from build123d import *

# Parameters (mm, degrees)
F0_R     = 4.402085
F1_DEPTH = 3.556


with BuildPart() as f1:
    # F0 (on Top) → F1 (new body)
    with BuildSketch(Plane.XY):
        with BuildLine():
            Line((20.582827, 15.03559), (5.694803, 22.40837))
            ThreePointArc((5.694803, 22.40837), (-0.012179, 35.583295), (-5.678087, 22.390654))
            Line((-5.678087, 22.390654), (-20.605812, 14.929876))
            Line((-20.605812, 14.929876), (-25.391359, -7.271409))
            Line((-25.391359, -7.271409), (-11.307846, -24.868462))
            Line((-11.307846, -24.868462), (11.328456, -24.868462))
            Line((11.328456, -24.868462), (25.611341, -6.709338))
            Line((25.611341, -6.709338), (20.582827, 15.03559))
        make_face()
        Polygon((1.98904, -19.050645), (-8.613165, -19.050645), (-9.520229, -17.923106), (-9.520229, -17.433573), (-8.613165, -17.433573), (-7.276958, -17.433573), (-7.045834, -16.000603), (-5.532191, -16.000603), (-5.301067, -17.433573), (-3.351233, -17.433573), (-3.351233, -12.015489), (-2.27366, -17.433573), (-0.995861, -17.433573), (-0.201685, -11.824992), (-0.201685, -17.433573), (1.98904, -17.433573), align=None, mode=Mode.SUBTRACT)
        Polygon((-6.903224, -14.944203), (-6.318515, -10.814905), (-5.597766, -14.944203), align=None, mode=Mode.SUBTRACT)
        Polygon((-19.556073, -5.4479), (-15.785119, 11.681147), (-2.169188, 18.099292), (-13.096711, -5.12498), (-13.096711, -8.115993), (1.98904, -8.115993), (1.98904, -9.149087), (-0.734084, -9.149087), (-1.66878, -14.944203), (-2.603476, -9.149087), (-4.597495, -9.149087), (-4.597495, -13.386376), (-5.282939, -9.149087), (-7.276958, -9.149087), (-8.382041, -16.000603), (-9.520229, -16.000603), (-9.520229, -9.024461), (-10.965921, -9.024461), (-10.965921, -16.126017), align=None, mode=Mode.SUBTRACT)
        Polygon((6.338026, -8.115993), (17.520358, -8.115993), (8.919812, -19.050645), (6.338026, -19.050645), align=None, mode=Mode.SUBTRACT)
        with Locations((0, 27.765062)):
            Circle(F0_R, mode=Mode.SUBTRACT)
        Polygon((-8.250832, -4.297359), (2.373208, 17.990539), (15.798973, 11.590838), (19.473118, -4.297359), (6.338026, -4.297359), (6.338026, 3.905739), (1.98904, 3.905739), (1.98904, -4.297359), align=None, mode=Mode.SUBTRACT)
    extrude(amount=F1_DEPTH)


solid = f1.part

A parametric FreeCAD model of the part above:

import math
import FreeCAD as App
import Part
import Sketcher
from FreeCAD import Vector
Q = App.Units.Quantity


def add_polygon(sketch, points):
    """Adds a closed chain of lines whose ends are joined by coincident constraints."""
    first, n = sketch.GeometryCount, len(points)
    for a, b in zip(points, points[1:] + points[:1]):
        sketch.addGeometry(Part.LineSegment(App.Vector(*a, 0), App.Vector(*b, 0)), False)
    for i in range(n):
        sketch.addConstraint(Sketcher.Constraint("Coincident", first + i, 2, first + (i + 1) % n, 1))

doc = App.newDocument("Part")
params = doc.addObject("Spreadsheet::Sheet", "Params")
for row, (alias, value) in enumerate([
    ("pad1_length", "0.14 in"),
], start=1):
    params.set(f"A{row}", alias)
    params.set(f"B{row}", "=" + value)
    params.setAlias(f"B{row}", alias)

body = doc.addObject("PartDesign::Body", "Body")

sketch1 = body.newObject("Sketcher::SketchObject", "Sketch")
sketch1.AttachmentSupport = (doc.getObject("XY_Plane"), [""])
sketch1.MapMode = "FlatFace"
sketch1.addGeometry(Part.LineSegment(Vector(20.582827, 15.03559, 0), Vector(5.694803, 22.40837, 0)), False)
sketch1.addGeometry(Part.ArcOfCircle(Part.Circle(Vector(0, 27.765061, 0), Vector(0, 0, 1), 7.818243), math.radians(-43.247627), math.radians(223.426131)), False)
sketch1.addGeometry(Part.LineSegment(Vector(-5.678087, 22.390654, 0), Vector(-20.605812, 14.929876, 0)), False)
sketch1.addGeometry(Part.LineSegment(Vector(-20.605812, 14.929876, 0), Vector(-25.391359, -7.271409, 0)), False)
sketch1.addGeometry(Part.LineSegment(Vector(-25.391359, -7.271409, 0), Vector(-11.307846, -24.868462, 0)), False)
sketch1.addGeometry(Part.LineSegment(Vector(-11.307846, -24.868462, 0), Vector(11.328456, -24.868462, 0)), False)
sketch1.addGeometry(Part.LineSegment(Vector(11.328456, -24.868462, 0), Vector(25.611341, -6.709338, 0)), False)
sketch1.addGeometry(Part.LineSegment(Vector(25.611341, -6.709338, 0), Vector(20.582827, 15.03559, 0)), False)
add_polygon(sketch1, [(-5.597766, -14.944203), (-6.903224, -14.944203), (-6.318515, -10.814905)])
add_polygon(sketch1, [(1.98904, -17.433573), (1.98904, -19.050645), (-8.613165, -19.050645), (-9.520229, -17.923106), (-9.520229, -17.433573), (-7.276958, -17.433573), (-7.045834, -16.000603), (-5.532191, -16.000603), (-5.301067, -17.433573), (-3.351233, -17.433573), (-3.351233, -12.015489), (-2.27366, -17.433573), (-0.995861, -17.433573), (-0.201685, -11.824992), (-0.201685, -17.433573)])
add_polygon(sketch1, [(-10.965921, -16.126017), (-19.556073, -5.4479), (-15.785119, 11.681147), (-2.169188, 18.099292), (-13.096711, -5.12498), (-13.096711, -8.115993), (1.98904, -8.115993), (1.98904, -9.149087), (-0.734084, -9.149087), (-1.66878, -14.944203), (-2.603476, -9.149087), (-4.597495, -9.149087), (-4.597495, -13.386376), (-5.282939, -9.149087), (-7.276958, -9.149087), (-8.382041, -16.000603), (-9.520229, -16.000603), (-9.520229, -9.024461), (-10.965921, -9.024461)])
add_polygon(sketch1, [(6.338026, -19.050645), (6.338026, -8.115993), (17.520358, -8.115993), (8.919812, -19.050645)])
add_polygon(sketch1, [(1.98904, -4.297359), (-8.250832, -4.297359), (2.373208, 17.990539), (15.798973, 11.590838), (19.473118, -4.297359), (6.338026, -4.297359), (6.338026, 3.905739), (1.98904, 3.905739)])
sketch1.addGeometry(Part.Circle(Vector(0, 27.765062, 0), Vector(0, 0, 1), 4.402085), False)
sketch1.addConstraint([
    Sketcher.Constraint("Coincident", 0, 2, 1, 1),
    Sketcher.Constraint("Coincident", 1, 2, 2, 1),
    Sketcher.Constraint("Coincident", 2, 2, 3, 1),
    Sketcher.Constraint("Coincident", 3, 2, 4, 1),
    Sketcher.Constraint("Coincident", 4, 2, 5, 1),
    Sketcher.Constraint("Coincident", 5, 2, 6, 1),
    Sketcher.Constraint("Coincident", 6, 2, 7, 1),
    Sketcher.Constraint("Coincident", 7, 2, 0, 1),
    Sketcher.Constraint("Horizontal", 5),
    Sketcher.Constraint("Horizontal", 8),
    Sketcher.Constraint("Vertical", 11),
    Sketcher.Constraint("Horizontal", 12),
    Sketcher.Constraint("Vertical", 14),
    Sketcher.Constraint("Horizontal", 15),
    Sketcher.Constraint("Horizontal", 17),
    Sketcher.Constraint("Horizontal", 19),
    Sketcher.Constraint("Vertical", 20),
    Sketcher.Constraint("Horizontal", 22),
    Sketcher.Constraint("Vertical", 24),
    Sketcher.Constraint("Horizontal", 25),
    Sketcher.Constraint("Vertical", 30),
    Sketcher.Constraint("Horizontal", 31),
    Sketcher.Constraint("Vertical", 32),
    Sketcher.Constraint("Horizontal", 33),
    Sketcher.Constraint("Horizontal", 36),
    Sketcher.Constraint("Vertical", 37),
    Sketcher.Constraint("Horizontal", 39),
    Sketcher.Constraint("Horizontal", 41),
    Sketcher.Constraint("Vertical", 42),
    Sketcher.Constraint("Horizontal", 43),
    Sketcher.Constraint("Vertical", 44),
    Sketcher.Constraint("Vertical", 45),
    Sketcher.Constraint("Horizontal", 46),
    Sketcher.Constraint("Horizontal", 48),
    Sketcher.Constraint("Horizontal", 49),
    Sketcher.Constraint("Horizontal", 53),
    Sketcher.Constraint("Vertical", 54),
    Sketcher.Constraint("Horizontal", 55),
    Sketcher.Constraint("Vertical", 56),
    Sketcher.Constraint("Coincident", 57, 3, 1, 3),
    Sketcher.Constraint("PointOnObject", 1, 3, -2),
    Sketcher.Constraint("Diameter", 57, 8.80417),
    Sketcher.Constraint("DistanceX", 22, 1, 22, 2, 1.277799),
    Sketcher.Constraint("DistanceY", 54, 1, 54, 2, 8.203098),
    Sketcher.Constraint("DistanceY", 56, 2, 56, 1, 8.203098),
    Sketcher.Constraint("DistanceX", 34, 2, -1, 1, Q("0.0657 in")),
    Sketcher.Constraint("Radius", 1, 7.818243),
    Sketcher.Constraint("DistanceY", 20, 2, 23, 2, Q("0.0074999 in")),
    Sketcher.Constraint("Distance", 3, 22.711198),
    Sketcher.Constraint("Distance", 21, 5.524201),
    Sketcher.Constraint("DistanceX", 15, 1, 15, 2, 2.243271),
    Sketcher.Constraint("DistanceX", 31, 1, 31, 2, 15.085751),
    Sketcher.Constraint("DistanceX", 36, 2, 36, 1, 1.994019),
    Sketcher.Constraint("DistanceX", 39, 2, 39, 1, 1.994019),
    Sketcher.Constraint("DistanceX", 41, 2, 41, 1, 1.138188),
    Sketcher.Constraint("DistanceX", 43, 2, 43, 1, 1.445692),
    Sketcher.Constraint("DistanceY", 24, 2, 24, 1, 5.608581),
    Sketcher.Constraint("DistanceY", 37, 2, 37, 1, 4.237289),
    Sketcher.Constraint("DistanceY", 26, 2, -1, 1, 5.4479),
    Sketcher.Constraint("DistanceY", 6, 2, 1, 3, 34.474399),
    Sketcher.Constraint("DistanceY", 8, 2, 9, 2, 4.129298),
    Sketcher.Constraint("DistanceX", 12, 2, 10, 2, 3.015399),
    Sketcher.Constraint("DistanceY", 13, 2, 9, 2, 7.108201),
    Sketcher.Constraint("DistanceY", 16, 2, 8, 2, 1.0564),
    Sketcher.Constraint("DistanceX", 10, 2, 18, 2, 0.296699),
    Sketcher.Constraint("DistanceX", 16, 2, 19, 2, 3.694601),
    Sketcher.Constraint("DistanceX", 21, 2, 11, 2, 4.2627),
    Sketcher.Constraint("DistanceX", 1, 2, 28, 2, 3.508899),
    Sketcher.Constraint("DistanceY", 23, 2, 31, 2, 3.708999),
    Sketcher.Constraint("DistanceX", 33, 2, 23, 2, 0.532399),
    Sketcher.Constraint("DistanceY", 40, 2, 8, 2, 1.0564),
    Sketcher.Constraint("DistanceY", 23, 2, 45, 2, 3.708999),
    Sketcher.Constraint("DistanceY", 51, 2, 50, 2, 6.399701),
    Sketcher.Constraint("DistanceY", 54, 2, 51, 2, 7.685099),
    Sketcher.Constraint("Distance", 4, 22.538891),
    Sketcher.Constraint("Distance", 6, 23.103129),
    Sketcher.Constraint("Distance", 9, 4.17049),
    Sketcher.Constraint("Distance", 16, 1.451489),
    Sketcher.Constraint("Distance", 18, 1.451489),
    Sketcher.Constraint("Distance", 23, 5.66453),
    Sketcher.Constraint("Distance", 28, 15.052779),
    Sketcher.Constraint("Distance", 34, 5.870011),
    Sketcher.Constraint("Distance", 35, 5.870011),
    Sketcher.Constraint("Distance", 38, 4.292371),
    Sketcher.Constraint("Distance", 47, 13.911722),
    Sketcher.Constraint("Distance", 51, 14.873041),
    Sketcher.Constraint("DistanceX", 5, 1, 5, 2, 22.636302),
    Sketcher.Constraint("DistanceX", 8, 2, 8, 1, 1.305458),
    Sketcher.Constraint("DistanceX", 12, 2, 12, 1, 10.602205),
    Sketcher.Constraint("DistanceX", 17, 1, 17, 2, 1.513643),
    Sketcher.Constraint("DistanceX", 19, 1, 19, 2, 1.949834),
    Sketcher.Constraint("DistanceX", 33, 2, 33, 1, 2.723124),
    Sketcher.Constraint("DistanceX", 46, 1, 46, 2, 11.182332),
    Sketcher.Constraint("DistanceX", 48, 2, 48, 1, 2.581786),
    Sketcher.Constraint("DistanceX", 49, 2, 49, 1, 10.239872),
    Sketcher.Constraint("DistanceX", 53, 2, 53, 1, 13.135092),
    Sketcher.Constraint("DistanceX", 55, 2, 55, 1, 4.348986),
    Sketcher.Constraint("DistanceY", 11, 2, 11, 1, 1.617072),
    Sketcher.Constraint("DistanceY", 14, 1, 14, 2, 0.489533),
    Sketcher.Constraint("DistanceY", 20, 1, 20, 2, 5.418084),
    Sketcher.Constraint("DistanceY", 30, 2, 30, 1, 2.991013),
    Sketcher.Constraint("DistanceY", 32, 2, 32, 1, 1.033094),
    Sketcher.Constraint("DistanceY", 42, 1, 42, 2, 6.976142),
    Sketcher.Constraint("DistanceY", 44, 2, 44, 1, 7.101556),
    Sketcher.Constraint("DistanceY", -1, 1, 1, 3, 27.765061),
    Sketcher.Constraint("DistanceY", -1, 1, 0, 2, 22.40837),
    Sketcher.Constraint("DistanceX", 2, 2, -1, 1, 20.605812),
    Sketcher.Constraint("DistanceX", 3, 2, -1, 1, 25.391359),
    Sketcher.Constraint("DistanceY", 3, 2, -1, 1, 7.271409),
    Sketcher.Constraint("DistanceX", -1, 1, 6, 2, 25.611341),
    Sketcher.Constraint("DistanceY", -1, 1, 7, 2, 15.03559),
    Sketcher.Constraint("DistanceX", -1, 1, 11, 2, 1.98904),
    Sketcher.Constraint("DistanceY", 20, 2, -1, 1, 12.015489),
    Sketcher.Constraint("DistanceX", 27, 2, -1, 1, 15.785119),
    Sketcher.Constraint("DistanceX", 28, 2, -1, 1, 2.169188),
    Sketcher.Constraint("DistanceY", -1, 1, 28, 2, 18.099292),
    Sketcher.Constraint("DistanceX", 38, 2, -1, 1, 5.282939),
    Sketcher.Constraint("DistanceX", 40, 2, -1, 1, 8.382041),
    Sketcher.Constraint("DistanceX", -1, 1, 46, 2, 17.520358),
    Sketcher.Constraint("DistanceY", 49, 2, -1, 1, 4.297359),
    Sketcher.Constraint("DistanceX", -1, 1, 50, 2, 2.373208),
    Sketcher.Constraint("DistanceX", -1, 1, 55, 2, 1.98904),
    Sketcher.Constraint("DistanceX", 26, 2, 9, 2, 13.237558),
    Sketcher.Constraint("DistanceX", 35, 2, 23, 2, 2.401791),
    Sketcher.Constraint("Distance", 0, 16.613583),
])
pad1 = body.newObject("PartDesign::Pad", "Pad")
pad1.Profile = sketch1
pad1.setExpression("Length", "Params.pad1_length")

doc.recompute()
